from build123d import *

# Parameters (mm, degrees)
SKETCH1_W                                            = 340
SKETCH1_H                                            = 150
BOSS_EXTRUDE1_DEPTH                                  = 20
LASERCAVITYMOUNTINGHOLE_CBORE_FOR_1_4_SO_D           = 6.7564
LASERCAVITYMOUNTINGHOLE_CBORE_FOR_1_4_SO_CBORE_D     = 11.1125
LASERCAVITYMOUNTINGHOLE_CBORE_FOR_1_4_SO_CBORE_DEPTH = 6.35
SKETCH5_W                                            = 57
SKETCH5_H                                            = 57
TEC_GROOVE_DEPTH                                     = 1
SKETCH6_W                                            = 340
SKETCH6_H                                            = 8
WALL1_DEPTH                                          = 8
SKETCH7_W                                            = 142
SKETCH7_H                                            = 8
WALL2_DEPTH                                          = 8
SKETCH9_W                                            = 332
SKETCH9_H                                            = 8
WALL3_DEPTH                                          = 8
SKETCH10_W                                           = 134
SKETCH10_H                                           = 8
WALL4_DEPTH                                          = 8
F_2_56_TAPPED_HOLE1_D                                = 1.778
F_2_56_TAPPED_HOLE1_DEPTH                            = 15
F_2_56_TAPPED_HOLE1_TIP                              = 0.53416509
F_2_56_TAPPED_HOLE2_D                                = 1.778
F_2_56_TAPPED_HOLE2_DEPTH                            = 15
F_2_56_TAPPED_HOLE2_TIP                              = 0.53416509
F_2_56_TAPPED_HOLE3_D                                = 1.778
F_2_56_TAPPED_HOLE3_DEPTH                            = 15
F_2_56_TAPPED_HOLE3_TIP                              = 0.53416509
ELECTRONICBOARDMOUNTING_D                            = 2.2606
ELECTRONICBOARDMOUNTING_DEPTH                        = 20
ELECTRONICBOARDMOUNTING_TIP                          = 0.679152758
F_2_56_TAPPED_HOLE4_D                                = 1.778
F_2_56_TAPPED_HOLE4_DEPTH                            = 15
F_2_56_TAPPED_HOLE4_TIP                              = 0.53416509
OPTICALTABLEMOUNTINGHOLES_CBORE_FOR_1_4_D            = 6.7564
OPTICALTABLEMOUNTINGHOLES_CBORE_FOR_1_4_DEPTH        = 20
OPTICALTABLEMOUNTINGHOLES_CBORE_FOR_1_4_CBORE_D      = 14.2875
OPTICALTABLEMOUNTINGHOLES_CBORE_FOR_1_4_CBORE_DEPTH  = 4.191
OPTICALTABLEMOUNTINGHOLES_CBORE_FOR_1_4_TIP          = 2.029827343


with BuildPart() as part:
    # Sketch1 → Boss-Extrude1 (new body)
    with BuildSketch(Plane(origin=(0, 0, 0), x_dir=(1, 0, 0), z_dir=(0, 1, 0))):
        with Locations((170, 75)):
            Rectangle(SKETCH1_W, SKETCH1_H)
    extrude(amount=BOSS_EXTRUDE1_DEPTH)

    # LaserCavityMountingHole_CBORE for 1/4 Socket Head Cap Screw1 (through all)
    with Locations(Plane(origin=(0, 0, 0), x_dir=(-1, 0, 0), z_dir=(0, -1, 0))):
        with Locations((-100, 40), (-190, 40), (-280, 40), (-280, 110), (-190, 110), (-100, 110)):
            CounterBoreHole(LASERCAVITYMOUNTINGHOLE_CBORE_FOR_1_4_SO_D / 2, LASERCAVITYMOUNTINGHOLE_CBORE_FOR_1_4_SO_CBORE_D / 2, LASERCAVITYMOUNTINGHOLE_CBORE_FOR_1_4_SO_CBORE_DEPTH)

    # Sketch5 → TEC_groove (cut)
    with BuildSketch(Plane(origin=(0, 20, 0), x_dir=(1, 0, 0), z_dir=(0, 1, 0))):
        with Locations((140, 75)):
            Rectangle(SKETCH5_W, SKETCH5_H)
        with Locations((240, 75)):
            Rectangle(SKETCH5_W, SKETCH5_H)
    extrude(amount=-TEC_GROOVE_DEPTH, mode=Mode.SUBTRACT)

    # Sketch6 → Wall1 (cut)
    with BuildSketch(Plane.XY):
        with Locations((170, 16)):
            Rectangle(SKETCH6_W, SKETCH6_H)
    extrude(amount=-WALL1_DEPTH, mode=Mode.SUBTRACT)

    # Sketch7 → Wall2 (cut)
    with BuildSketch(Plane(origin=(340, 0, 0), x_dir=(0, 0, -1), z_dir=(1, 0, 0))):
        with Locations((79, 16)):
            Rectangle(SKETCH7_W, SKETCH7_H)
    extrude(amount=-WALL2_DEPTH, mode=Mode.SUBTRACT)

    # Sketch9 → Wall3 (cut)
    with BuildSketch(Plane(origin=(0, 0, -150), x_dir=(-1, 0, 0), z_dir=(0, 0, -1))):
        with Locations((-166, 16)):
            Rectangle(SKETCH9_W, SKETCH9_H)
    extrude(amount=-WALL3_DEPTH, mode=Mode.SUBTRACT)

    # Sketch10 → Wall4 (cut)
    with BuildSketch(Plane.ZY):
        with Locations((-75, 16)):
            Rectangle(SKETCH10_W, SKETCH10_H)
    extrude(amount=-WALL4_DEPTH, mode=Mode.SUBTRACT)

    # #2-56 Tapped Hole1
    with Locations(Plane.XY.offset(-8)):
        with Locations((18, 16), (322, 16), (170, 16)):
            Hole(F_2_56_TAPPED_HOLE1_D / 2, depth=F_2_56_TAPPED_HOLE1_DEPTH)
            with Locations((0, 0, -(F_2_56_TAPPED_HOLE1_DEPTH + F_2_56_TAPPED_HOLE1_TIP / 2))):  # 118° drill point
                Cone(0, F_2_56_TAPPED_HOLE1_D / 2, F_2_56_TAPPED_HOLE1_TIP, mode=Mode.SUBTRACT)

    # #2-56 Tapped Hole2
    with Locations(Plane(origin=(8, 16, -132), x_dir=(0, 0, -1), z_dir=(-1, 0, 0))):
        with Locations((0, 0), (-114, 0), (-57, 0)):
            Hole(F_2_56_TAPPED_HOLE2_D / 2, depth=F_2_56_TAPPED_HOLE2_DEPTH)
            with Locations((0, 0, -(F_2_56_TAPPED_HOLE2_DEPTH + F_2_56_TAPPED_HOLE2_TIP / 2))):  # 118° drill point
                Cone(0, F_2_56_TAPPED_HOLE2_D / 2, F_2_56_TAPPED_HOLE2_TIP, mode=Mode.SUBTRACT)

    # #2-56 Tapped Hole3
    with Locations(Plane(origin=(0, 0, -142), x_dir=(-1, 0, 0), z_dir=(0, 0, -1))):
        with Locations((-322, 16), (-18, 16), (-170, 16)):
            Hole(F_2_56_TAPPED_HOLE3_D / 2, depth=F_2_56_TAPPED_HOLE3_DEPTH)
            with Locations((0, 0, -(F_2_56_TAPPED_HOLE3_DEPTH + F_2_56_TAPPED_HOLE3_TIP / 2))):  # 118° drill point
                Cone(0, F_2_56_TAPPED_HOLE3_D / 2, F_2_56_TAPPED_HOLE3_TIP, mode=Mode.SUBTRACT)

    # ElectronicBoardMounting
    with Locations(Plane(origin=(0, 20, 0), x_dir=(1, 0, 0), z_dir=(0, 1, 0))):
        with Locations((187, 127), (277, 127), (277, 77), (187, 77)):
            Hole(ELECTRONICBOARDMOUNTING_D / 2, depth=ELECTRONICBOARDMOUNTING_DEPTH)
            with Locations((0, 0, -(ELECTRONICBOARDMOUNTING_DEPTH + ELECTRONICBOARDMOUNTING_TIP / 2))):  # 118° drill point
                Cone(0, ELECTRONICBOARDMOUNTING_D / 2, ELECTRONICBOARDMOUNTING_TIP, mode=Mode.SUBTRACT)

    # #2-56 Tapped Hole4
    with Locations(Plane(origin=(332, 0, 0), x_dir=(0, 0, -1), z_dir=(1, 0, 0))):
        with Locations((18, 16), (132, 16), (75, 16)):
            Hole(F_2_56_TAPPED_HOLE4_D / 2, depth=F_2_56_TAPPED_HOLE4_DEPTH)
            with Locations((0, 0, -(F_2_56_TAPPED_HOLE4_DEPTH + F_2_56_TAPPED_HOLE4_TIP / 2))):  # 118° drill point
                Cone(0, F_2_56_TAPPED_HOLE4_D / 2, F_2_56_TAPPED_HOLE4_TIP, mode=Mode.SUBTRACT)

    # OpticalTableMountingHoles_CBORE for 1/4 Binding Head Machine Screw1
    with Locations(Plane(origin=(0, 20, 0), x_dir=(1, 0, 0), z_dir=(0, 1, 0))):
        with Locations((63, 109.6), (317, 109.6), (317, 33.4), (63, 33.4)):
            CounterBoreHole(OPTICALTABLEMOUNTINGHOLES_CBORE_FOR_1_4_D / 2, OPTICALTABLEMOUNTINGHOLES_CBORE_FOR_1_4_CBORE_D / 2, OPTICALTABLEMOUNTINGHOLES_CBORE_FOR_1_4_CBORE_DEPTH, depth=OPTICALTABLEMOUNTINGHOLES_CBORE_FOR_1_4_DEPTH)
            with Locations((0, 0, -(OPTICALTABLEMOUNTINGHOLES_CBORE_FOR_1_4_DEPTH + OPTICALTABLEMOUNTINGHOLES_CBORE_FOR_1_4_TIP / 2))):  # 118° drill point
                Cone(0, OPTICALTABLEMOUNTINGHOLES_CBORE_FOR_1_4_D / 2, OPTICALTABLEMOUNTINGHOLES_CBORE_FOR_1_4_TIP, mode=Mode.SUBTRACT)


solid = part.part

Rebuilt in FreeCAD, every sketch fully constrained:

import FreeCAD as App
import Part
import Sketcher

doc = App.newDocument("Part")
params = doc.addObject("Spreadsheet::Sheet", "Params")
for row, (alias, value) in enumerate([
    ("sketch1_width", "340 mm"),
    ("sketch1_height", "150 mm"),
    ("pad1_length", "20 mm"),
    ("hole_diameter", "6.7564 mm"),
    ("hole_cbore_diameter", "11.1125 mm"),
    ("hole_cbore_depth", "6.35 mm"),
    ("sketch3_width", "57 mm"),
    ("pocket1_length", "1 mm"),
    ("sketch4_width", "340 mm"),
    ("sketch4_height", "8 mm"),
    ("pocket2_length", "8 mm"),
    ("sketch5_width", "8 mm"),
    ("sketch5_height", "142 mm"),
    ("pocket3_length", "8 mm"),
    ("sketch6_width", "332 mm"),
    ("sketch6_height", "8 mm"),
    ("pocket4_length", "8 mm"),
    ("sketch7_width", "8 mm"),
    ("sketch7_height", "134 mm"),
    ("pocket5_length", "8 mm"),
    ("hole2_diameter", "1.778 mm"),
    ("hole2_depth", "15 mm"),
    ("hole3_diameter", "1.778 mm"),
    ("hole3_depth", "15 mm"),
    ("hole4_diameter", "1.778 mm"),
    ("hole4_depth", "15 mm"),
    ("hole5_diameter", "2.2606 mm"),
    ("hole5_depth", "20 mm"),
    ("hole6_diameter", "1.778 mm"),
    ("hole6_depth", "15 mm"),
    ("hole7_diameter", "6.7564 mm"),
    ("hole7_depth", "20 mm"),
    ("hole7_cbore_diameter", "14.2875 mm"),
    ("hole7_cbore_depth", "4.191 mm"),
], start=1):
    params.set(f"A{row}", alias)
    params.set(f"B{row}", "=" + value)
    params.setAlias(f"B{row}", alias)

body = doc.addObject("PartDesign::Body", "Body")

# Sketch on XZ plane
sketch1 = doc.addObject("Sketcher::SketchObject", "Sketch")
body.addObject(sketch1)
sketch1.AttachmentSupport = (doc.XZ_Plane, [""])
sketch1.MapMode = "FlatFace"
sketch1.addGeometry([
    Part.LineSegment(App.Vector(0, -150, 0), App.Vector(0, 0, 0)),
    Part.LineSegment(App.Vector(0, 0, 0), App.Vector(340, 0, 0)),
    Part.LineSegment(App.Vector(340, 0, 0), App.Vector(340, -150, 0)),
    Part.LineSegment(App.Vector(340, -150, 0), App.Vector(0, -150, 0)),
], False)
sketch1.addConstraint([
    Sketcher.Constraint("Coincident", 0, 2, 1, 1),
    Sketcher.Constraint("Coincident", 1, 2, 2, 1),
    Sketcher.Constraint("Coincident", 2, 2, 3, 1),
    Sketcher.Constraint("Coincident", 3, 2, 0, 1),
    Sketcher.Constraint("Vertical", 0),
    Sketcher.Constraint("Horizontal", 1),
    Sketcher.Constraint("Vertical", 2),
    Sketcher.Constraint("Horizontal", 3),
    Sketcher.Constraint("Coincident", 0, 2, -1, 1),
    Sketcher.Constraint("DistanceX", 1, 1, 1, 2, 340.0),
    Sketcher.Constraint("DistanceY", 0, 1, 0, 2, 150.0),
])
sketch1.setExpression("Constraints[9]", "Params.sketch1_width")
sketch1.setExpression("Constraints[10]", "Params.sketch1_height")
pad1 = doc.addObject("PartDesign::Pad", "Pad")
body.addObject(pad1)
pad1.Profile = sketch1
pad1.setExpression("Length", "Params.pad1_length")
pad1.Reversed = True

# Sketch on XZ plane
sketch2 = doc.addObject("Sketcher::SketchObject", "Sketch001")
body.addObject(sketch2)
sketch2.AttachmentSupport = (doc.XZ_Plane, [""])
sketch2.MapMode = "FlatFace"
sketch2.addGeometry([
    Part.Circle(App.Vector(100, -40, 0), App.Vector(0, 0, 1), 3.4),  # 0
    Part.Circle(App.Vector(190, -40, 0), App.Vector(0, 0, 1), 3.4),  # 1
    Part.Circle(App.Vector(280, -40, 0), App.Vector(0, 0, 1), 3.4),  # 2
    Part.Circle(App.Vector(280, -110, 0), App.Vector(0, 0, 1), 3.4),  # 3
    Part.Circle(App.Vector(190, -110, 0), App.Vector(0, 0, 1), 3.4),  # 4
    Part.Circle(App.Vector(100, -110, 0), App.Vector(0, 0, 1), 3.4),  # 5
], False)
sketch2.addConstraint([
    Sketcher.Constraint("Equal", 0, 1),
    Sketcher.Constraint("Equal", 1, 2),
    Sketcher.Constraint("Equal", 2, 3),
    Sketcher.Constraint("Equal", 3, 4),
    Sketcher.Constraint("Equal", 4, 5),
    Sketcher.Constraint("Horizontal", 0, 3, 1, 3),
    Sketcher.Constraint("Horizontal", 1, 3, 2, 3),
    Sketcher.Constraint("Horizontal", 3, 3, 4, 3),
    Sketcher.Constraint("Horizontal", 4, 3, 5, 3),
    Sketcher.Constraint("Vertical", 2, 3, 3, 3),
    Sketcher.Constraint("Vertical", 1, 3, 4, 3),
    Sketcher.Constraint("Vertical", 0, 3, 5, 3),
    Sketcher.Constraint("DistanceX", -1, 1, 0, 3, 100.0),
    Sketcher.Constraint("DistanceY", 0, 3, -1, 1, 40.0),
    Sketcher.Constraint("DistanceX", -1, 1, 1, 3, 190.0),
    Sketcher.Constraint("DistanceX", -1, 1, 2, 3, 280.0),
    Sketcher.Constraint("DistanceY", 3, 3, -1, 1, 110.0),
    Sketcher.Constraint("Diameter", 0, 6.7564),
])
doc.recompute()
hole = doc.addObject("PartDesign::Hole", "Hole")
body.addObject(hole)
hole.Profile = sketch2
hole.ThreadType = "None"
hole.setExpression("Diameter", "Params.hole_diameter")
hole.DepthType = "ThroughAll"
hole.HoleCutType = "Counterbore"
hole.setExpression("HoleCutDiameter", "Params.hole_cbore_diameter")
hole.setExpression("HoleCutDepth", "Params.hole_cbore_depth")

# Sketch on XZ plane
sketch3 = doc.addObject("Sketcher::SketchObject", "Sketch002")
body.addObject(sketch3)
sketch3.AttachmentSupport = (doc.XZ_Plane, [""])
sketch3.MapMode = "FlatFace"
sketch3.AttachmentOffset = App.Placement(App.Vector(0, 0, -20), App.Rotation())
sketch3.addGeometry([
    Part.LineSegment(App.Vector(112, -104, 0), App.Vector(112, -46, 0)),  # 0
    Part.LineSegment(App.Vector(112, -46, 0), App.Vector(168, -46, 0)),  # 1
    Part.LineSegment(App.Vector(168, -46, 0), App.Vector(168, -104, 0)),  # 2
    Part.LineSegment(App.Vector(168, -104, 0), App.Vector(112, -104, 0)),  # 3
    Part.LineSegment(App.Vector(212, -104, 0), App.Vector(212, -46, 0)),  # 4
    Part.LineSegment(App.Vector(212, -46, 0), App.Vector(268, -46, 0)),  # 5
    Part.LineSegment(App.Vector(268, -46, 0), App.Vector(268, -104, 0)),  # 6
    Part.LineSegment(App.Vector(268, -104, 0), App.Vector(212, -104, 0)),  # 7
], False)
sketch3.addConstraint([
    Sketcher.Constraint("Coincident", 0, 2, 1, 1),
    Sketcher.Constraint("Coincident", 1, 2, 2, 1),
    Sketcher.Constraint("Coincident", 2, 2, 3, 1),
    Sketcher.Constraint("Coincident", 3, 2, 0, 1),
    Sketcher.Constraint("Coincident", 4, 2, 5, 1),
    Sketcher.Constraint("Coincident", 5, 2, 6, 1),
    Sketcher.Constraint("Coincident", 6, 2, 7, 1),
    Sketcher.Constraint("Coincident", 7, 2, 4, 1),
    Sketcher.Constraint("Vertical", 0),
    Sketcher.Constraint("Horizontal", 1),
    Sketcher.Constraint("Vertical", 2),
    Sketcher.Constraint("Horizontal", 3),
    Sketcher.Constraint("Vertical", 4),
    Sketcher.Constraint("Horizontal", 5),
    Sketcher.Constraint("Vertical", 6),
    Sketcher.Constraint("Horizontal", 7),
    Sketcher.Constraint("Horizontal", 1, 2, 4, 2),
    Sketcher.Constraint("Horizontal", 3, 2, 6, 2),
    Sketcher.Constraint("Equal", 3, 5),
    Sketcher.Constraint("Equal", 7, 0),
    Sketcher.Constraint("DistanceX", 1, 1, 1, 2, 57.0),
    Sketcher.Constraint("DistanceX", 1, 2, 4, 2, 43.0),
    Sketcher.Constraint("DistanceX", -1, 1, 0, 2, 111.5),
    Sketcher.Constraint("DistanceY", 0, 2, -1, 1, 46.5),
])
sketch3.setExpression("Constraints[20]", "Params.sketch3_width")
pocket1 = doc.addObject("PartDesign::Pocket", "Pocket")
body.addObject(pocket1)
pocket1.Profile = sketch3
pocket1.setExpression("Length", "Params.pocket1_length")
pocket1.Reversed = True

# Sketch on XY plane
sketch4 = doc.addObject("Sketcher::SketchObject", "Sketch003")
body.addObject(sketch4)
sketch4.AttachmentSupport = (doc.XY_Plane, [""])
sketch4.MapMode = "FlatFace"
sketch4.addGeometry([
    Part.LineSegment(App.Vector(0, 20, 0), App.Vector(0, 12, 0)),
    Part.LineSegment(App.Vector(0, 12, 0), App.Vector(340, 12, 0)),
    Part.LineSegment(App.Vector(340, 12, 0), App.Vector(340, 20, 0)),
    Part.LineSegment(App.Vector(340, 20, 0), App.Vector(0, 20, 0)),
], False)
sketch4.addConstraint([
    Sketcher.Constraint("Coincident", 0, 2, 1, 1),
    Sketcher.Constraint("Coincident", 1, 2, 2, 1),
    Sketcher.Constraint("Coincident", 2, 2, 3, 1),
    Sketcher.Constraint("Coincident", 3, 2, 0, 1),
    Sketcher.Constraint("Vertical", 0),
    Sketcher.Constraint("Horizontal", 1),
    Sketcher.Constraint("Vertical", 2),
    Sketcher.Constraint("Horizontal", 3),
    Sketcher.Constraint("PointOnObject", 0, 2, -2),
    Sketcher.Constraint("DistanceX", 1, 1, 1, 2, 340.0),
    Sketcher.Constraint("DistanceY", 0, 2, 0, 1, 8.0),
    Sketcher.Constraint("DistanceY", -1, 1, 0, 2, 12.0),
])
sketch4.setExpression("Constraints[9]", "Params.sketch4_width")
sketch4.setExpression("Constraints[10]", "Params.sketch4_height")
pocket2 = doc.addObject("PartDesign::Pocket", "Pocket001")
body.addObject(pocket2)
pocket2.Profile = sketch4
pocket2.setExpression("Length", "Params.pocket2_length")

# Sketch on YZ plane
sketch5 = doc.addObject("Sketcher::SketchObject", "Sketch004")
body.addObject(sketch5)
sketch5.AttachmentSupport = (doc.YZ_Plane, [""])
sketch5.MapMode = "FlatFace"
sketch5.AttachmentOffset = App.Placement(App.Vector(0, 0, 340), App.Rotation())
sketch5.addGeometry([
    Part.LineSegment(App.Vector(20, -8, 0), App.Vector(12, -8, 0)),
    Part.LineSegment(App.Vector(12, -8, 0), App.Vector(12, -150, 0)),
    Part.LineSegment(App.Vector(12, -150, 0), App.Vector(20, -150, 0)),
    Part.LineSegment(App.Vector(20, -150, 0), App.Vector(20, -8, 0)),
], False)
sketch5.addConstraint([
    Sketcher.Constraint("Coincident", 0, 2, 1, 1),
    Sketcher.Constraint("Coincident", 1, 2, 2, 1),
    Sketcher.Constraint("Coincident", 2, 2, 3, 1),
    Sketcher.Constraint("Coincident", 3, 2, 0, 1),
    Sketcher.Constraint("Horizontal", 0),
    Sketcher.Constraint("Vertical", 1),
    Sketcher.Constraint("Horizontal", 2),
    Sketcher.Constraint("Vertical", 3),
    Sketcher.Constraint("DistanceX", 0, 2, 0, 1, 8.0),
    Sketcher.Constraint("DistanceY", 1, 2, 1, 1, 142.0),
    Sketcher.Constraint("DistanceX", -1, 1, 0, 2, 12.0),
    Sketcher.Constraint("DistanceY", 0, 2, -1, 1, 8.0),
])
sketch5.setExpression("Constraints[8]", "Params.sketch5_width")
sketch5.setExpression("Constraints[9]", "Params.sketch5_height")
pocket3 = doc.addObject("PartDesign::Pocket", "Pocket002")
body.addObject(pocket3)
pocket3.Profile = sketch5
pocket3.setExpression("Length", "Params.pocket3_length")

# Sketch on XY plane
sketch6 = doc.addObject("Sketcher::SketchObject", "Sketch005")
body.addObject(sketch6)
sketch6.AttachmentSupport = (doc.XY_Plane, [""])
sketch6.MapMode = "FlatFace"
sketch6.AttachmentOffset = App.Placement(App.Vector(0, 0, -150), App.Rotation())
sketch6.addGeometry([
    Part.LineSegment(App.Vector(332, 20, 0), App.Vector(332, 12, 0)),
    Part.LineSegment(App.Vector(332, 12, 0), App.Vector(0, 12, 0)),
    Part.LineSegment(App.Vector(0, 12, 0), App.Vector(0, 20, 0)),
    Part.LineSegment(App.Vector(0, 20, 0), App.Vector(332, 20, 0)),
], False)
sketch6.addConstraint([
    Sketcher.Constraint("Coincident", 0, 2, 1, 1),
    Sketcher.Constraint("Coincident", 1, 2, 2, 1),
    Sketcher.Constraint("Coincident", 2, 2, 3, 1),
    Sketcher.Constraint("Coincident", 3, 2, 0, 1),
    Sketcher.Constraint("Vertical", 0),
    Sketcher.Constraint("Horizontal", 1),
    Sketcher.Constraint("Vertical", 2),
    Sketcher.Constraint("Horizontal", 3),
    Sketcher.Constraint("PointOnObject", 1, 2, -2),
    Sketcher.Constraint("DistanceX", 1, 2, 1, 1, 332.0),
    Sketcher.Constraint("DistanceY", 0, 2, 0, 1, 8.0),
    Sketcher.Constraint("DistanceY", -1, 1, 0, 2, 12.0),
])
sketch6.setExpression("Constraints[9]", "Params.sketch6_width")
sketch6.setExpression("Constraints[10]", "Params.sketch6_height")
pocket4 = doc.addObject("PartDesign::Pocket", "Pocket003")
body.addObject(pocket4)
pocket4.Profile = sketch6
pocket4.setExpression("Length", "Params.pocket4_length")
pocket4.Reversed = True

# Sketch on YZ plane
sketch7 = doc.addObject("Sketcher::SketchObject", "Sketch006")
body.addObject(sketch7)
sketch7.AttachmentSupport = (doc.YZ_Plane, [""])
sketch7.MapMode = "FlatFace"
sketch7.addGeometry([
    Part.LineSegment(App.Vector(20, -142, 0), App.Vector(12, -142, 0)),
    Part.LineSegment(App.Vector(12, -142, 0), App.Vector(12, -8, 0)),
    Part.LineSegment(App.Vector(12, -8, 0), App.Vector(20, -8, 0)),
    Part.LineSegment(App.Vector(20, -8, 0), App.Vector(20, -142, 0)),
], False)
sketch7.addConstraint([
    Sketcher.Constraint("Coincident", 0, 2, 1, 1),
    Sketcher.Constraint("Coincident", 1, 2, 2, 1),
    Sketcher.Constraint("Coincident", 2, 2, 3, 1),
    Sketcher.Constraint("Coincident", 3, 2, 0, 1),
    Sketcher.Constraint("Horizontal", 0),
    Sketcher.Constraint("Vertical", 1),
    Sketcher.Constraint("Horizontal", 2),
    Sketcher.Constraint("Vertical", 3),
    Sketcher.Constraint("DistanceX", 0, 2, 0, 1, 8.0),
    Sketcher.Constraint("DistanceY", 1, 1, 1, 2, 134.0),
    Sketcher.Constraint("DistanceX", -1, 1, 0, 2, 12.0),
    Sketcher.Constraint("DistanceY", 0, 2, -1, 1, 142.0),
])
sketch7.setExpression("Constraints[8]", "Params.sketch7_width")
sketch7.setExpression("Constraints[9]", "Params.sketch7_height")
pocket5 = doc.addObject("PartDesign::Pocket", "Pocket004")
body.addObject(pocket5)
pocket5.Profile = sketch7
pocket5.setExpression("Length", "Params.pocket5_length")
pocket5.Reversed = True

# Sketch on XY plane
sketch8 = doc.addObject("Sketcher::SketchObject", "Sketch007")
body.addObject(sketch8)
sketch8.AttachmentSupport = (doc.XY_Plane, [""])
sketch8.MapMode = "FlatFace"
sketch8.AttachmentOffset = App.Placement(App.Vector(0, 0, -8), App.Rotation())
sketch8.addGeometry([
    Part.Circle(App.Vector(18, 16, 0), App.Vector(0, 0, 1), 0.9),
    Part.Circle(App.Vector(322, 16, 0), App.Vector(0, 0, 1), 0.9),
    Part.Circle(App.Vector(170, 16, 0), App.Vector(0, 0, 1), 0.9),
], False)
sketch8.addConstraint([
    Sketcher.Constraint("Equal", 0, 1),
    Sketcher.Constraint("Equal", 1, 2),
    Sketcher.Constraint("Horizontal", 0, 3, 1, 3),
    Sketcher.Constraint("Horizontal", 1, 3, 2, 3),
    Sketcher.Constraint("Diameter", 0, 1.778),
    Sketcher.Constraint("DistanceX", -1, 1, 0, 3, 18.0),
    Sketcher.Constraint("DistanceY", -1, 1, 0, 3, 16.0),
    Sketcher.Constraint("DistanceX", -1, 1, 1, 3, 322.0),
    Sketcher.Constraint("DistanceX", -1, 1, 2, 3, 170.0),
])
doc.recompute()
hole2 = doc.addObject("PartDesign::Hole", "Hole001")
body.addObject(hole2)
hole2.Profile = sketch8
hole2.ThreadType = "None"
hole2.setExpression("Diameter", "Params.hole2_diameter")
hole2.DepthType = "Dimension"
hole2.setExpression("Depth", "Params.hole2_depth")
hole2.DrillPoint = "Angled"
hole2.DrillPointAngle = 118

# Sketch on YZ plane
sketch9 = doc.addObject("Sketcher::SketchObject", "Sketch008")
body.addObject(sketch9)
sketch9.AttachmentSupport = (doc.YZ_Plane, [""])
sketch9.MapMode = "FlatFace"
sketch9.AttachmentOffset = App.Placement(App.Vector(0, 0, 8), App.Rotation())
sketch9.addGeometry([
    Part.Circle(App.Vector(16, -132, 0), App.Vector(0, 0, 1), 0.9),
    Part.Circle(App.Vector(16, -18, 0), App.Vector(0, 0, 1), 0.9),
    Part.Circle(App.Vector(16, -75, 0), App.Vector(0, 0, 1), 0.9),
], False)
sketch9.addConstraint([
    Sketcher.Constraint("Equal", 0, 1),
    Sketcher.Constraint("Equal", 1, 2),
    Sketcher.Constraint("Vertical", 0, 3, 1, 3),
    Sketcher.Constraint("Vertical", 1, 3, 2, 3),
    Sketcher.Constraint("Diameter", 0, 1.778),
    Sketcher.Constraint("DistanceX", -1, 1, 0, 3, 16.0),
    Sketcher.Constraint("DistanceY", 0, 3, -1, 1, 132.0),
    Sketcher.Constraint("DistanceY", 1, 3, -1, 1, 18.0),
    Sketcher.Constraint("DistanceY", 2, 3, -1, 1, 75.0),
])
doc.recompute()
hole3 = doc.addObject("PartDesign::Hole", "Hole002")
body.addObject(hole3)
hole3.Profile = sketch9
hole3.ThreadType = "None"
hole3.setExpression("Diameter", "Params.hole3_diameter")
hole3.DepthType = "Dimension"
hole3.setExpression("Depth", "Params.hole3_depth")
hole3.DrillPoint = "Angled"
hole3.DrillPointAngle = 118
hole3.Reversed = True

# Sketch on XY plane
sketch10 = doc.addObject("Sketcher::SketchObject", "Sketch009")
body.addObject(sketch10)
sketch10.AttachmentSupport = (doc.XY_Plane, [""])
sketch10.MapMode = "FlatFace"
sketch10.AttachmentOffset = App.Placement(App.Vector(0, 0, -142), App.Rotation())
sketch10.addGeometry([
    Part.Circle(App.Vector(322, 16, 0), App.Vector(0, 0, 1), 0.9),
    Part.Circle(App.Vector(18, 16, 0), App.Vector(0, 0, 1), 0.9),
    Part.Circle(App.Vector(170, 16, 0), App.Vector(0, 0, 1), 0.9),
], False)
sketch10.addConstraint([
    Sketcher.Constraint("Equal", 0, 1),
    Sketcher.Constraint("Equal", 1, 2),
    Sketcher.Constraint("Horizontal", 0, 3, 1, 3),
    Sketcher.Constraint("Horizontal", 1, 3, 2, 3),
    Sketcher.Constraint("Diameter", 0, 1.778),
    Sketcher.Constraint("DistanceX", -1, 1, 0, 3, 322.0),
    Sketcher.Constraint("DistanceY", -1, 1, 0, 3, 16.0),
    Sketcher.Constraint("DistanceX", -1, 1, 1, 3, 18.0),
    Sketcher.Constraint("DistanceX", -1, 1, 2, 3, 170.0),
])
doc.recompute()
hole4 = doc.addObject("PartDesign::Hole", "Hole003")
body.addObject(hole4)
hole4.Profile = sketch10
hole4.ThreadType = "None"
hole4.setExpression("Diameter", "Params.hole4_diameter")
hole4.DepthType = "Dimension"
hole4.setExpression("Depth", "Params.hole4_depth")
hole4.DrillPoint = "Angled"
hole4.DrillPointAngle = 118
hole4.Reversed = True

# Sketch on XZ plane
sketch11 = doc.addObject("Sketcher::SketchObject", "Sketch010")
body.addObject(sketch11)
sketch11.AttachmentSupport = (doc.XZ_Plane, [""])
sketch11.MapMode = "FlatFace"
sketch11.AttachmentOffset = App.Placement(App.Vector(0, 0, -20), App.Rotation())
sketch11.addGeometry([
    Part.Circle(App.Vector(187, -127, 0), App.Vector(0, 0, 1), 1.1),
    Part.Circle(App.Vector(277, -127, 0), App.Vector(0, 0, 1), 1.1),
    Part.Circle(App.Vector(277, -77, 0), App.Vector(0, 0, 1), 1.1),
    Part.Circle(App.Vector(187, -77, 0), App.Vector(0, 0, 1), 1.1),
], False)
sketch11.addConstraint([
    Sketcher.Constraint("Equal", 0, 1),
    Sketcher.Constraint("Equal", 1, 2),
    Sketcher.Constraint("Equal", 2, 3),
    Sketcher.Constraint("Horizontal", 0, 3, 1, 3),
    Sketcher.Constraint("Horizontal", 2, 3, 3, 3),
    Sketcher.Constraint("Vertical", 1, 3, 2, 3),
    Sketcher.Constraint("Vertical", 0, 3, 3, 3),
    Sketcher.Constraint("DistanceX", -1, 1, 0, 3, 187.0),
    Sketcher.Constraint("DistanceY", 0, 3, -1, 1, 127.0),
    Sketcher.Constraint("DistanceX", -1, 1, 1, 3, 277.0),
    Sketcher.Constraint("DistanceY", 2, 3, -1, 1, 77.0),
    Sketcher.Constraint("Diameter", 0, 2.2606),
])
doc.recompute()
hole5 = doc.addObject("PartDesign::Hole", "Hole004")
body.addObject(hole5)
hole5.Profile = sketch11
hole5.ThreadType = "None"
hole5.setExpression("Diameter", "Params.hole5_diameter")
hole5.DepthType = "Dimension"
hole5.setExpression("Depth", "Params.hole5_depth")
hole5.DrillPoint = "Angled"
hole5.DrillPointAngle = 118
hole5.Reversed = True

# Sketch on YZ plane
sketch12 = doc.addObject("Sketcher::SketchObject", "Sketch011")
body.addObject(sketch12)
sketch12.AttachmentSupport = (doc.YZ_Plane, [""])
sketch12.MapMode = "FlatFace"
sketch12.AttachmentOffset = App.Placement(App.Vector(0, 0, 332), App.Rotation())
sketch12.addGeometry([
    Part.Circle(App.Vector(16, -18, 0), App.Vector(0, 0, 1), 0.9),
    Part.Circle(App.Vector(16, -132, 0), App.Vector(0, 0, 1), 0.9),
    Part.Circle(App.Vector(16, -75, 0), App.Vector(0, 0, 1), 0.9),
], False)
sketch12.addConstraint([
    Sketcher.Constraint("Equal", 0, 1),
    Sketcher.Constraint("Equal", 1, 2),
    Sketcher.Constraint("Vertical", 0, 3, 1, 3),
    Sketcher.Constraint("Vertical", 1, 3, 2, 3),
    Sketcher.Constraint("Diameter", 0, 1.778),
    Sketcher.Constraint("DistanceX", -1, 1, 0, 3, 16.0),
    Sketcher.Constraint("DistanceY", 0, 3, -1, 1, 18.0),
    Sketcher.Constraint("DistanceY", 1, 3, -1, 1, 132.0),
    Sketcher.Constraint("DistanceY", 2, 3, -1, 1, 75.0),
])
doc.recompute()
hole6 = doc.addObject("PartDesign::Hole", "Hole005")
body.addObject(hole6)
hole6.Profile = sketch12
hole6.ThreadType = "None"
hole6.setExpression("Diameter", "Params.hole6_diameter")
hole6.DepthType = "Dimension"
hole6.setExpression("Depth", "Params.hole6_depth")
hole6.DrillPoint = "Angled"
hole6.DrillPointAngle = 118

# Sketch on XZ plane
sketch13 = doc.addObject("Sketcher::SketchObject", "Sketch012")
body.addObject(sketch13)
sketch13.AttachmentSupport = (doc.XZ_Plane, [""])
sketch13.MapMode = "FlatFace"
sketch13.AttachmentOffset = App.Placement(App.Vector(0, 0, -20), App.Rotation())
sketch13.addGeometry([
    Part.Circle(App.Vector(63, -109.6, 0), App.Vector(0, 0, 1), 3.4),
    Part.Circle(App.Vector(317, -109.6, 0), App.Vector(0, 0, 1), 3.4),
    Part.Circle(App.Vector(317, -33.4, 0), App.Vector(0, 0, 1), 3.4),
    Part.Circle(App.Vector(63, -33.4, 0), App.Vector(0, 0, 1), 3.4),
], False)
sketch13.addConstraint([
    Sketcher.Constraint("Equal", 0, 1),
    Sketcher.Constraint("Equal", 1, 2),
    Sketcher.Constraint("Equal", 2, 3),
    Sketcher.Constraint("Horizontal", 0, 3, 1, 3),
    Sketcher.Constraint("Horizontal", 2, 3, 3, 3),
    Sketcher.Constraint("Vertical", 1, 3, 2, 3),
    Sketcher.Constraint("Vertical", 0, 3, 3, 3),
    Sketcher.Constraint("DistanceX", -1, 1, 0, 3, 63.0),
    Sketcher.Constraint("DistanceX", -1, 1, 1, 3, 317.0),
    Sketcher.Constraint("Diameter", 0, 6.7564),
    Sketcher.Constraint("DistanceY", 0, 3, -1, 1, 109.6),
    Sketcher.Constraint("DistanceY", 2, 3, -1, 1, 33.4),
])
doc.recompute()
hole7 = doc.addObject("PartDesign::Hole", "Hole006")
body.addObject(hole7)
hole7.Profile = sketch13
hole7.ThreadType = "None"
hole7.setExpression("Diameter", "Params.hole7_diameter")
hole7.DepthType = "Dimension"
hole7.setExpression("Depth", "Params.hole7_depth")
hole7.DrillPoint = "Angled"
hole7.DrillPointAngle = 118
hole7.HoleCutType = "Counterbore"
hole7.setExpression("HoleCutDiameter", "Params.hole7_cbore_diameter")
hole7.setExpression("HoleCutDepth", "Params.hole7_cbore_depth")
hole7.Reversed = True

doc.recompute()
